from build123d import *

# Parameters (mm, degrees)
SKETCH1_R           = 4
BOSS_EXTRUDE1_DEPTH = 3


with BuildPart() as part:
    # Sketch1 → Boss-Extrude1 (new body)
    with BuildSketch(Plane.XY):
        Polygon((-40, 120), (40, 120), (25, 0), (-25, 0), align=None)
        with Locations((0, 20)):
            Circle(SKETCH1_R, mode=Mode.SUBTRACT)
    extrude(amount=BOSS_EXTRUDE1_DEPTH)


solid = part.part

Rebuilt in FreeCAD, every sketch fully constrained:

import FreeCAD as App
import Part
import Sketcher

V = App.Vector
Q = App.Units.Quantity

doc = App.newDocument("Part")
params = doc.addObject("Spreadsheet::Sheet", "Params")
for row, (alias, value) in enumerate([
    ("sketch1_diameter", "8 mm"),
    ("sketch1_width", "80 mm"),
    ("sketch1_width2", "50 mm"),
    ("pad1_length", "3 mm"),
], start=1):
    params.set(f"A{row}", alias)
    params.set(f"B{row}", "=" + value)
    params.setAlias(f"B{row}", alias)

body = doc.addObject("PartDesign::Body", "Body")

# Sketch on XY plane
sketch1 = doc.addObject("Sketcher::SketchObject", "Sketch")
body.addObject(sketch1)
sketch1.AttachmentSupport = (doc.XY_Plane, [""])
sketch1.MapMode = "FlatFace"
sketch1.addGeometry(Part.LineSegment(V(40, 120, 0), V(-40, 120, 0)), False)
sketch1.addGeometry(Part.LineSegment(V(-40, 120, 0), V(-25, 0, 0)), False)
sketch1.addGeometry(Part.LineSegment(V(-25, 0, 0), V(25, 0, 0)), False)
sketch1.addGeometry(Part.LineSegment(V(25, 0, 0), V(40, 120, 0)), False)
sketch1.addGeometry(Part.Circle(V(0, 20, 0), V(0, 0, 1), 4), False)
sketch1.addConstraint(Sketcher.Constraint("Coincident", 0, 2, 1, 1))
sketch1.addConstraint(Sketcher.Constraint("Coincident", 1, 2, 2, 1))
sketch1.addConstraint(Sketcher.Constraint("Coincident", 2, 2, 3, 1))
sketch1.addConstraint(Sketcher.Constraint("Coincident", 3, 2, 0, 1))
sketch1.addConstraint(Sketcher.Constraint("Horizontal", 0))
sketch1.addConstraint(Sketcher.Constraint("Horizontal", 2))
sketch1.addConstraint(Sketcher.Constraint("Symmetric", 1, 2, 2, 2, -1, 1))
sketch1.addConstraint(Sketcher.Constraint("PointOnObject", 4, 3, -2))
sketch1.addConstraint(Sketcher.Constraint("Equal", 1, 3))
sketch1.addConstraint(Sketcher.Constraint("Diameter", 4, Q("8 mm")))
sketch1.addConstraint(Sketcher.Constraint("DistanceX", 0, 2, 0, 1, Q("80 mm")))
sketch1.addConstraint(Sketcher.Constraint("DistanceX", 2, 1, 2, 2, Q("50 mm")))
sketch1.addConstraint(Sketcher.Constraint("DistanceY", -1, 1, 4, 3, Q("20 mm")))
sketch1.addConstraint(Sketcher.Constraint("DistanceY", -1, 1, 0, 2, Q("120 mm")))
sketch1.setExpression("Constraints[9]", "Params.sketch1_diameter")
sketch1.setExpression("Constraints[10]", "Params.sketch1_width")
sketch1.setExpression("Constraints[11]", "Params.sketch1_width2")
pad1 = doc.addObject("PartDesign::Pad", "Pad")
body.addObject(pad1)
pad1.Profile = sketch1
pad1.setExpression("Length", "Params.pad1_length")

doc.recompute()
